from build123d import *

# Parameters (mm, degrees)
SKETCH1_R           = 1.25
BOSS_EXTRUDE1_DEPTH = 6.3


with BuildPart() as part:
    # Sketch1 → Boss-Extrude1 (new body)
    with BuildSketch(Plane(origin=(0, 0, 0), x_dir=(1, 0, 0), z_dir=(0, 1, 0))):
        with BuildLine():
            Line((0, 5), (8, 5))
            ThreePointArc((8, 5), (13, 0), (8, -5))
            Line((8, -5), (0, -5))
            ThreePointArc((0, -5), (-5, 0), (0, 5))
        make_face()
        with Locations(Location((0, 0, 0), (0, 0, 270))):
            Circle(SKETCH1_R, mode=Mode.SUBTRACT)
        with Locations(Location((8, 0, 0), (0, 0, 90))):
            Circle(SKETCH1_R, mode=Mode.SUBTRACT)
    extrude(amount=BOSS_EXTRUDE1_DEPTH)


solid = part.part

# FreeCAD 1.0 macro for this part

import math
import FreeCAD as App
import Part
import Sketcher

doc = App.newDocument("Part")
params = doc.addObject("Spreadsheet::Sheet", "Params")
for row, (alias, value) in enumerate([
    ("sketch1_radius", "5 mm"),
    ("sketch1_diameter", "2.5 mm"),
    ("sketch1_width", "8 mm"),
    ("pad1_length", "6.3 mm"),
], start=1):
    params.set(f"A{row}", alias)
    params.set(f"B{row}", "=" + value)
    params.setAlias(f"B{row}", alias)

body = doc.addObject("PartDesign::Body", "Body")

# Sketch on XZ plane
sketch1 = body.newObject("Sketcher::SketchObject", "Sketch")
sketch1.AttachmentSupport = (doc.getObject("XZ_Plane"), [""])
sketch1.MapMode = "FlatFace"
sketch1.addGeometry([
    Part.LineSegment(App.Vector(8, -5, 0), App.Vector(0, -5, 0)),  # 0
    Part.ArcOfCircle(Part.Circle(App.Vector(0, 0, 0), App.Vector(0, 0, 1), 5), math.radians(90), math.radians(270)),  # 1
    Part.LineSegment(App.Vector(0, 5, 0), App.Vector(8, 5, 0)),  # 2
    Part.ArcOfCircle(Part.Circle(App.Vector(8, 0, 0), App.Vector(0, 0, 1), 5), math.radians(-90), math.radians(90)),  # 3
    Part.Circle(App.Vector(8, 0, 0), App.Vector(0, 0, 1), 1.2),  # 4
    Part.Circle(App.Vector(0, 0, 0), App.Vector(0, 0, 1), 1.2),  # 5
], False)
sketch1.addConstraint([
    Sketcher.Constraint("Tangent", 0, 2, 1, 2),
    Sketcher.Constraint("Tangent", 1, 1, 2, 1),
    Sketcher.Constraint("Tangent", 2, 2, 3, 2),
    Sketcher.Constraint("Tangent", 3, 1, 0, 1),
    Sketcher.Constraint("Horizontal", 0),
    Sketcher.Constraint("Horizontal", 2),
    Sketcher.Constraint("Coincident", 1, 3, -1, 1),
    Sketcher.Constraint("Coincident", 5, 3, -1, 1),
    Sketcher.Constraint("Coincident", 4, 3, 3, 3),
    Sketcher.Constraint("Equal", 4, 5),
    Sketcher.Constraint("Radius", 1, 5.0),
    Sketcher.Constraint("Diameter", 4, 2.5),
    Sketcher.Constraint("DistanceX", 0, 2, 0, 1, 8.0),
])
sketch1.setExpression("Constraints[10]", "Params.sketch1_radius")
sketch1.setExpression("Constraints[11]", "Params.sketch1_diameter")
sketch1.setExpression("Constraints[12]", "Params.sketch1_width")
pad1 = body.newObject("PartDesign::Pad", "Pad")
pad1.Profile = sketch1
pad1.setExpression("Length", "Params.pad1_length")
pad1.Reversed = True

doc.recompute()
